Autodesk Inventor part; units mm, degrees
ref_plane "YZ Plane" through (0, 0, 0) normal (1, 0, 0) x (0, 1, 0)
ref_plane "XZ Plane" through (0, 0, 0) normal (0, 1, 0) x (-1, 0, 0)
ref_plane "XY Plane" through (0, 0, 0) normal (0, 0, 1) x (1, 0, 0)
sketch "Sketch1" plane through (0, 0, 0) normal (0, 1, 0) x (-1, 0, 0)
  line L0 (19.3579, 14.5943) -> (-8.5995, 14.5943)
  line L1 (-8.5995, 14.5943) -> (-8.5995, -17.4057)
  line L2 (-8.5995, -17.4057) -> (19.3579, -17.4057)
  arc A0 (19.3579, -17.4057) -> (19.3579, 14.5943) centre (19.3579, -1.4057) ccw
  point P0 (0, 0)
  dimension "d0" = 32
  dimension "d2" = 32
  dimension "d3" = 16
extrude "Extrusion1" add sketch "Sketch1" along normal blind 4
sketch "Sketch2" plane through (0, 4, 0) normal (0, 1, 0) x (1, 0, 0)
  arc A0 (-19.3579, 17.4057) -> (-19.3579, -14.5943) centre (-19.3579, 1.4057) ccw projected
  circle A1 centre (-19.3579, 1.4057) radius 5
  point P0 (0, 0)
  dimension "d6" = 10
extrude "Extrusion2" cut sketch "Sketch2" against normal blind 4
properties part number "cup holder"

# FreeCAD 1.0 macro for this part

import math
import FreeCAD as App
import Part
import Sketcher
from FreeCAD import Vector

doc = App.newDocument("Part")
body = doc.addObject("PartDesign::Body", "Body")

# Sketch on XZ plane
sketch1 = body.newObject("Sketcher::SketchObject", "Sketch")
sketch1.AttachmentSupport = (doc.getObject("XZ_Plane"), [""])
sketch1.MapMode = "FlatFace"
sketch1.addGeometry(Part.ArcOfCircle(Part.Circle(Vector(-19, -1, 0), Vector(0, 0, 1), 16), math.radians(90), math.radians(270)), False)
sketch1.addGeometry(Part.LineSegment(Vector(-19, 15, 0), Vector(9, 15, 0)), False)
sketch1.addGeometry(Part.LineSegment(Vector(9, 15, 0), Vector(9, -17, 0)), False)
sketch1.addGeometry(Part.LineSegment(Vector(9, -17, 0), Vector(-19, -17, 0)), False)
sketch1.addConstraint(Sketcher.Constraint("Tangent", 0, 1, 1, 1))
sketch1.addConstraint(Sketcher.Constraint("Coincident", 1, 2, 2, 1))
sketch1.addConstraint(Sketcher.Constraint("Coincident", 2, 2, 3, 1))
sketch1.addConstraint(Sketcher.Constraint("Tangent", 3, 2, 0, 2))
sketch1.addConstraint(Sketcher.Constraint("Horizontal", 1))
sketch1.addConstraint(Sketcher.Constraint("Vertical", 2))
sketch1.addConstraint(Sketcher.Constraint("Horizontal", 3))
sketch1.addConstraint(Sketcher.Constraint("Radius", 0, 16.0))
sketch1.addConstraint(Sketcher.Constraint("DistanceX", 1, 1, 1, 2, 27.9574))
sketch1.addConstraint(Sketcher.Constraint("DistanceX", 0, 3, -1, 1, 19.358))
sketch1.addConstraint(Sketcher.Constraint("DistanceY", 0, 3, -1, 1, 1.4057))
pad1 = body.newObject("PartDesign::Pad", "Pad")
pad1.Profile = sketch1
pad1.Length = 4
pad1.Reversed = True

# Sketch on XZ plane
sketch2 = body.newObject("Sketcher::SketchObject", "Sketch001")
sketch2.AttachmentSupport = (doc.getObject("XZ_Plane"), [""])
sketch2.MapMode = "FlatFace"
sketch2.AttachmentOffset = App.Placement(Vector(0, 0, -4), App.Rotation())
sketch2.addGeometry(Part.Circle(Vector(-19, -1, 0), Vector(0, 0, 1), 5), False)
sketch2.addConstraint(Sketcher.Constraint("Diameter", 0, 10.0))
sketch2.addConstraint(Sketcher.Constraint("DistanceX", 0, 3, -1, 1, 19.358))
sketch2.addConstraint(Sketcher.Constraint("DistanceY", 0, 3, -1, 1, 1.4057))
pocket1 = body.newObject("PartDesign::Pocket", "Pocket")
pocket1.Profile = sketch2
pocket1.Length = 4
pocket1.Reversed = True

doc.recompute()
